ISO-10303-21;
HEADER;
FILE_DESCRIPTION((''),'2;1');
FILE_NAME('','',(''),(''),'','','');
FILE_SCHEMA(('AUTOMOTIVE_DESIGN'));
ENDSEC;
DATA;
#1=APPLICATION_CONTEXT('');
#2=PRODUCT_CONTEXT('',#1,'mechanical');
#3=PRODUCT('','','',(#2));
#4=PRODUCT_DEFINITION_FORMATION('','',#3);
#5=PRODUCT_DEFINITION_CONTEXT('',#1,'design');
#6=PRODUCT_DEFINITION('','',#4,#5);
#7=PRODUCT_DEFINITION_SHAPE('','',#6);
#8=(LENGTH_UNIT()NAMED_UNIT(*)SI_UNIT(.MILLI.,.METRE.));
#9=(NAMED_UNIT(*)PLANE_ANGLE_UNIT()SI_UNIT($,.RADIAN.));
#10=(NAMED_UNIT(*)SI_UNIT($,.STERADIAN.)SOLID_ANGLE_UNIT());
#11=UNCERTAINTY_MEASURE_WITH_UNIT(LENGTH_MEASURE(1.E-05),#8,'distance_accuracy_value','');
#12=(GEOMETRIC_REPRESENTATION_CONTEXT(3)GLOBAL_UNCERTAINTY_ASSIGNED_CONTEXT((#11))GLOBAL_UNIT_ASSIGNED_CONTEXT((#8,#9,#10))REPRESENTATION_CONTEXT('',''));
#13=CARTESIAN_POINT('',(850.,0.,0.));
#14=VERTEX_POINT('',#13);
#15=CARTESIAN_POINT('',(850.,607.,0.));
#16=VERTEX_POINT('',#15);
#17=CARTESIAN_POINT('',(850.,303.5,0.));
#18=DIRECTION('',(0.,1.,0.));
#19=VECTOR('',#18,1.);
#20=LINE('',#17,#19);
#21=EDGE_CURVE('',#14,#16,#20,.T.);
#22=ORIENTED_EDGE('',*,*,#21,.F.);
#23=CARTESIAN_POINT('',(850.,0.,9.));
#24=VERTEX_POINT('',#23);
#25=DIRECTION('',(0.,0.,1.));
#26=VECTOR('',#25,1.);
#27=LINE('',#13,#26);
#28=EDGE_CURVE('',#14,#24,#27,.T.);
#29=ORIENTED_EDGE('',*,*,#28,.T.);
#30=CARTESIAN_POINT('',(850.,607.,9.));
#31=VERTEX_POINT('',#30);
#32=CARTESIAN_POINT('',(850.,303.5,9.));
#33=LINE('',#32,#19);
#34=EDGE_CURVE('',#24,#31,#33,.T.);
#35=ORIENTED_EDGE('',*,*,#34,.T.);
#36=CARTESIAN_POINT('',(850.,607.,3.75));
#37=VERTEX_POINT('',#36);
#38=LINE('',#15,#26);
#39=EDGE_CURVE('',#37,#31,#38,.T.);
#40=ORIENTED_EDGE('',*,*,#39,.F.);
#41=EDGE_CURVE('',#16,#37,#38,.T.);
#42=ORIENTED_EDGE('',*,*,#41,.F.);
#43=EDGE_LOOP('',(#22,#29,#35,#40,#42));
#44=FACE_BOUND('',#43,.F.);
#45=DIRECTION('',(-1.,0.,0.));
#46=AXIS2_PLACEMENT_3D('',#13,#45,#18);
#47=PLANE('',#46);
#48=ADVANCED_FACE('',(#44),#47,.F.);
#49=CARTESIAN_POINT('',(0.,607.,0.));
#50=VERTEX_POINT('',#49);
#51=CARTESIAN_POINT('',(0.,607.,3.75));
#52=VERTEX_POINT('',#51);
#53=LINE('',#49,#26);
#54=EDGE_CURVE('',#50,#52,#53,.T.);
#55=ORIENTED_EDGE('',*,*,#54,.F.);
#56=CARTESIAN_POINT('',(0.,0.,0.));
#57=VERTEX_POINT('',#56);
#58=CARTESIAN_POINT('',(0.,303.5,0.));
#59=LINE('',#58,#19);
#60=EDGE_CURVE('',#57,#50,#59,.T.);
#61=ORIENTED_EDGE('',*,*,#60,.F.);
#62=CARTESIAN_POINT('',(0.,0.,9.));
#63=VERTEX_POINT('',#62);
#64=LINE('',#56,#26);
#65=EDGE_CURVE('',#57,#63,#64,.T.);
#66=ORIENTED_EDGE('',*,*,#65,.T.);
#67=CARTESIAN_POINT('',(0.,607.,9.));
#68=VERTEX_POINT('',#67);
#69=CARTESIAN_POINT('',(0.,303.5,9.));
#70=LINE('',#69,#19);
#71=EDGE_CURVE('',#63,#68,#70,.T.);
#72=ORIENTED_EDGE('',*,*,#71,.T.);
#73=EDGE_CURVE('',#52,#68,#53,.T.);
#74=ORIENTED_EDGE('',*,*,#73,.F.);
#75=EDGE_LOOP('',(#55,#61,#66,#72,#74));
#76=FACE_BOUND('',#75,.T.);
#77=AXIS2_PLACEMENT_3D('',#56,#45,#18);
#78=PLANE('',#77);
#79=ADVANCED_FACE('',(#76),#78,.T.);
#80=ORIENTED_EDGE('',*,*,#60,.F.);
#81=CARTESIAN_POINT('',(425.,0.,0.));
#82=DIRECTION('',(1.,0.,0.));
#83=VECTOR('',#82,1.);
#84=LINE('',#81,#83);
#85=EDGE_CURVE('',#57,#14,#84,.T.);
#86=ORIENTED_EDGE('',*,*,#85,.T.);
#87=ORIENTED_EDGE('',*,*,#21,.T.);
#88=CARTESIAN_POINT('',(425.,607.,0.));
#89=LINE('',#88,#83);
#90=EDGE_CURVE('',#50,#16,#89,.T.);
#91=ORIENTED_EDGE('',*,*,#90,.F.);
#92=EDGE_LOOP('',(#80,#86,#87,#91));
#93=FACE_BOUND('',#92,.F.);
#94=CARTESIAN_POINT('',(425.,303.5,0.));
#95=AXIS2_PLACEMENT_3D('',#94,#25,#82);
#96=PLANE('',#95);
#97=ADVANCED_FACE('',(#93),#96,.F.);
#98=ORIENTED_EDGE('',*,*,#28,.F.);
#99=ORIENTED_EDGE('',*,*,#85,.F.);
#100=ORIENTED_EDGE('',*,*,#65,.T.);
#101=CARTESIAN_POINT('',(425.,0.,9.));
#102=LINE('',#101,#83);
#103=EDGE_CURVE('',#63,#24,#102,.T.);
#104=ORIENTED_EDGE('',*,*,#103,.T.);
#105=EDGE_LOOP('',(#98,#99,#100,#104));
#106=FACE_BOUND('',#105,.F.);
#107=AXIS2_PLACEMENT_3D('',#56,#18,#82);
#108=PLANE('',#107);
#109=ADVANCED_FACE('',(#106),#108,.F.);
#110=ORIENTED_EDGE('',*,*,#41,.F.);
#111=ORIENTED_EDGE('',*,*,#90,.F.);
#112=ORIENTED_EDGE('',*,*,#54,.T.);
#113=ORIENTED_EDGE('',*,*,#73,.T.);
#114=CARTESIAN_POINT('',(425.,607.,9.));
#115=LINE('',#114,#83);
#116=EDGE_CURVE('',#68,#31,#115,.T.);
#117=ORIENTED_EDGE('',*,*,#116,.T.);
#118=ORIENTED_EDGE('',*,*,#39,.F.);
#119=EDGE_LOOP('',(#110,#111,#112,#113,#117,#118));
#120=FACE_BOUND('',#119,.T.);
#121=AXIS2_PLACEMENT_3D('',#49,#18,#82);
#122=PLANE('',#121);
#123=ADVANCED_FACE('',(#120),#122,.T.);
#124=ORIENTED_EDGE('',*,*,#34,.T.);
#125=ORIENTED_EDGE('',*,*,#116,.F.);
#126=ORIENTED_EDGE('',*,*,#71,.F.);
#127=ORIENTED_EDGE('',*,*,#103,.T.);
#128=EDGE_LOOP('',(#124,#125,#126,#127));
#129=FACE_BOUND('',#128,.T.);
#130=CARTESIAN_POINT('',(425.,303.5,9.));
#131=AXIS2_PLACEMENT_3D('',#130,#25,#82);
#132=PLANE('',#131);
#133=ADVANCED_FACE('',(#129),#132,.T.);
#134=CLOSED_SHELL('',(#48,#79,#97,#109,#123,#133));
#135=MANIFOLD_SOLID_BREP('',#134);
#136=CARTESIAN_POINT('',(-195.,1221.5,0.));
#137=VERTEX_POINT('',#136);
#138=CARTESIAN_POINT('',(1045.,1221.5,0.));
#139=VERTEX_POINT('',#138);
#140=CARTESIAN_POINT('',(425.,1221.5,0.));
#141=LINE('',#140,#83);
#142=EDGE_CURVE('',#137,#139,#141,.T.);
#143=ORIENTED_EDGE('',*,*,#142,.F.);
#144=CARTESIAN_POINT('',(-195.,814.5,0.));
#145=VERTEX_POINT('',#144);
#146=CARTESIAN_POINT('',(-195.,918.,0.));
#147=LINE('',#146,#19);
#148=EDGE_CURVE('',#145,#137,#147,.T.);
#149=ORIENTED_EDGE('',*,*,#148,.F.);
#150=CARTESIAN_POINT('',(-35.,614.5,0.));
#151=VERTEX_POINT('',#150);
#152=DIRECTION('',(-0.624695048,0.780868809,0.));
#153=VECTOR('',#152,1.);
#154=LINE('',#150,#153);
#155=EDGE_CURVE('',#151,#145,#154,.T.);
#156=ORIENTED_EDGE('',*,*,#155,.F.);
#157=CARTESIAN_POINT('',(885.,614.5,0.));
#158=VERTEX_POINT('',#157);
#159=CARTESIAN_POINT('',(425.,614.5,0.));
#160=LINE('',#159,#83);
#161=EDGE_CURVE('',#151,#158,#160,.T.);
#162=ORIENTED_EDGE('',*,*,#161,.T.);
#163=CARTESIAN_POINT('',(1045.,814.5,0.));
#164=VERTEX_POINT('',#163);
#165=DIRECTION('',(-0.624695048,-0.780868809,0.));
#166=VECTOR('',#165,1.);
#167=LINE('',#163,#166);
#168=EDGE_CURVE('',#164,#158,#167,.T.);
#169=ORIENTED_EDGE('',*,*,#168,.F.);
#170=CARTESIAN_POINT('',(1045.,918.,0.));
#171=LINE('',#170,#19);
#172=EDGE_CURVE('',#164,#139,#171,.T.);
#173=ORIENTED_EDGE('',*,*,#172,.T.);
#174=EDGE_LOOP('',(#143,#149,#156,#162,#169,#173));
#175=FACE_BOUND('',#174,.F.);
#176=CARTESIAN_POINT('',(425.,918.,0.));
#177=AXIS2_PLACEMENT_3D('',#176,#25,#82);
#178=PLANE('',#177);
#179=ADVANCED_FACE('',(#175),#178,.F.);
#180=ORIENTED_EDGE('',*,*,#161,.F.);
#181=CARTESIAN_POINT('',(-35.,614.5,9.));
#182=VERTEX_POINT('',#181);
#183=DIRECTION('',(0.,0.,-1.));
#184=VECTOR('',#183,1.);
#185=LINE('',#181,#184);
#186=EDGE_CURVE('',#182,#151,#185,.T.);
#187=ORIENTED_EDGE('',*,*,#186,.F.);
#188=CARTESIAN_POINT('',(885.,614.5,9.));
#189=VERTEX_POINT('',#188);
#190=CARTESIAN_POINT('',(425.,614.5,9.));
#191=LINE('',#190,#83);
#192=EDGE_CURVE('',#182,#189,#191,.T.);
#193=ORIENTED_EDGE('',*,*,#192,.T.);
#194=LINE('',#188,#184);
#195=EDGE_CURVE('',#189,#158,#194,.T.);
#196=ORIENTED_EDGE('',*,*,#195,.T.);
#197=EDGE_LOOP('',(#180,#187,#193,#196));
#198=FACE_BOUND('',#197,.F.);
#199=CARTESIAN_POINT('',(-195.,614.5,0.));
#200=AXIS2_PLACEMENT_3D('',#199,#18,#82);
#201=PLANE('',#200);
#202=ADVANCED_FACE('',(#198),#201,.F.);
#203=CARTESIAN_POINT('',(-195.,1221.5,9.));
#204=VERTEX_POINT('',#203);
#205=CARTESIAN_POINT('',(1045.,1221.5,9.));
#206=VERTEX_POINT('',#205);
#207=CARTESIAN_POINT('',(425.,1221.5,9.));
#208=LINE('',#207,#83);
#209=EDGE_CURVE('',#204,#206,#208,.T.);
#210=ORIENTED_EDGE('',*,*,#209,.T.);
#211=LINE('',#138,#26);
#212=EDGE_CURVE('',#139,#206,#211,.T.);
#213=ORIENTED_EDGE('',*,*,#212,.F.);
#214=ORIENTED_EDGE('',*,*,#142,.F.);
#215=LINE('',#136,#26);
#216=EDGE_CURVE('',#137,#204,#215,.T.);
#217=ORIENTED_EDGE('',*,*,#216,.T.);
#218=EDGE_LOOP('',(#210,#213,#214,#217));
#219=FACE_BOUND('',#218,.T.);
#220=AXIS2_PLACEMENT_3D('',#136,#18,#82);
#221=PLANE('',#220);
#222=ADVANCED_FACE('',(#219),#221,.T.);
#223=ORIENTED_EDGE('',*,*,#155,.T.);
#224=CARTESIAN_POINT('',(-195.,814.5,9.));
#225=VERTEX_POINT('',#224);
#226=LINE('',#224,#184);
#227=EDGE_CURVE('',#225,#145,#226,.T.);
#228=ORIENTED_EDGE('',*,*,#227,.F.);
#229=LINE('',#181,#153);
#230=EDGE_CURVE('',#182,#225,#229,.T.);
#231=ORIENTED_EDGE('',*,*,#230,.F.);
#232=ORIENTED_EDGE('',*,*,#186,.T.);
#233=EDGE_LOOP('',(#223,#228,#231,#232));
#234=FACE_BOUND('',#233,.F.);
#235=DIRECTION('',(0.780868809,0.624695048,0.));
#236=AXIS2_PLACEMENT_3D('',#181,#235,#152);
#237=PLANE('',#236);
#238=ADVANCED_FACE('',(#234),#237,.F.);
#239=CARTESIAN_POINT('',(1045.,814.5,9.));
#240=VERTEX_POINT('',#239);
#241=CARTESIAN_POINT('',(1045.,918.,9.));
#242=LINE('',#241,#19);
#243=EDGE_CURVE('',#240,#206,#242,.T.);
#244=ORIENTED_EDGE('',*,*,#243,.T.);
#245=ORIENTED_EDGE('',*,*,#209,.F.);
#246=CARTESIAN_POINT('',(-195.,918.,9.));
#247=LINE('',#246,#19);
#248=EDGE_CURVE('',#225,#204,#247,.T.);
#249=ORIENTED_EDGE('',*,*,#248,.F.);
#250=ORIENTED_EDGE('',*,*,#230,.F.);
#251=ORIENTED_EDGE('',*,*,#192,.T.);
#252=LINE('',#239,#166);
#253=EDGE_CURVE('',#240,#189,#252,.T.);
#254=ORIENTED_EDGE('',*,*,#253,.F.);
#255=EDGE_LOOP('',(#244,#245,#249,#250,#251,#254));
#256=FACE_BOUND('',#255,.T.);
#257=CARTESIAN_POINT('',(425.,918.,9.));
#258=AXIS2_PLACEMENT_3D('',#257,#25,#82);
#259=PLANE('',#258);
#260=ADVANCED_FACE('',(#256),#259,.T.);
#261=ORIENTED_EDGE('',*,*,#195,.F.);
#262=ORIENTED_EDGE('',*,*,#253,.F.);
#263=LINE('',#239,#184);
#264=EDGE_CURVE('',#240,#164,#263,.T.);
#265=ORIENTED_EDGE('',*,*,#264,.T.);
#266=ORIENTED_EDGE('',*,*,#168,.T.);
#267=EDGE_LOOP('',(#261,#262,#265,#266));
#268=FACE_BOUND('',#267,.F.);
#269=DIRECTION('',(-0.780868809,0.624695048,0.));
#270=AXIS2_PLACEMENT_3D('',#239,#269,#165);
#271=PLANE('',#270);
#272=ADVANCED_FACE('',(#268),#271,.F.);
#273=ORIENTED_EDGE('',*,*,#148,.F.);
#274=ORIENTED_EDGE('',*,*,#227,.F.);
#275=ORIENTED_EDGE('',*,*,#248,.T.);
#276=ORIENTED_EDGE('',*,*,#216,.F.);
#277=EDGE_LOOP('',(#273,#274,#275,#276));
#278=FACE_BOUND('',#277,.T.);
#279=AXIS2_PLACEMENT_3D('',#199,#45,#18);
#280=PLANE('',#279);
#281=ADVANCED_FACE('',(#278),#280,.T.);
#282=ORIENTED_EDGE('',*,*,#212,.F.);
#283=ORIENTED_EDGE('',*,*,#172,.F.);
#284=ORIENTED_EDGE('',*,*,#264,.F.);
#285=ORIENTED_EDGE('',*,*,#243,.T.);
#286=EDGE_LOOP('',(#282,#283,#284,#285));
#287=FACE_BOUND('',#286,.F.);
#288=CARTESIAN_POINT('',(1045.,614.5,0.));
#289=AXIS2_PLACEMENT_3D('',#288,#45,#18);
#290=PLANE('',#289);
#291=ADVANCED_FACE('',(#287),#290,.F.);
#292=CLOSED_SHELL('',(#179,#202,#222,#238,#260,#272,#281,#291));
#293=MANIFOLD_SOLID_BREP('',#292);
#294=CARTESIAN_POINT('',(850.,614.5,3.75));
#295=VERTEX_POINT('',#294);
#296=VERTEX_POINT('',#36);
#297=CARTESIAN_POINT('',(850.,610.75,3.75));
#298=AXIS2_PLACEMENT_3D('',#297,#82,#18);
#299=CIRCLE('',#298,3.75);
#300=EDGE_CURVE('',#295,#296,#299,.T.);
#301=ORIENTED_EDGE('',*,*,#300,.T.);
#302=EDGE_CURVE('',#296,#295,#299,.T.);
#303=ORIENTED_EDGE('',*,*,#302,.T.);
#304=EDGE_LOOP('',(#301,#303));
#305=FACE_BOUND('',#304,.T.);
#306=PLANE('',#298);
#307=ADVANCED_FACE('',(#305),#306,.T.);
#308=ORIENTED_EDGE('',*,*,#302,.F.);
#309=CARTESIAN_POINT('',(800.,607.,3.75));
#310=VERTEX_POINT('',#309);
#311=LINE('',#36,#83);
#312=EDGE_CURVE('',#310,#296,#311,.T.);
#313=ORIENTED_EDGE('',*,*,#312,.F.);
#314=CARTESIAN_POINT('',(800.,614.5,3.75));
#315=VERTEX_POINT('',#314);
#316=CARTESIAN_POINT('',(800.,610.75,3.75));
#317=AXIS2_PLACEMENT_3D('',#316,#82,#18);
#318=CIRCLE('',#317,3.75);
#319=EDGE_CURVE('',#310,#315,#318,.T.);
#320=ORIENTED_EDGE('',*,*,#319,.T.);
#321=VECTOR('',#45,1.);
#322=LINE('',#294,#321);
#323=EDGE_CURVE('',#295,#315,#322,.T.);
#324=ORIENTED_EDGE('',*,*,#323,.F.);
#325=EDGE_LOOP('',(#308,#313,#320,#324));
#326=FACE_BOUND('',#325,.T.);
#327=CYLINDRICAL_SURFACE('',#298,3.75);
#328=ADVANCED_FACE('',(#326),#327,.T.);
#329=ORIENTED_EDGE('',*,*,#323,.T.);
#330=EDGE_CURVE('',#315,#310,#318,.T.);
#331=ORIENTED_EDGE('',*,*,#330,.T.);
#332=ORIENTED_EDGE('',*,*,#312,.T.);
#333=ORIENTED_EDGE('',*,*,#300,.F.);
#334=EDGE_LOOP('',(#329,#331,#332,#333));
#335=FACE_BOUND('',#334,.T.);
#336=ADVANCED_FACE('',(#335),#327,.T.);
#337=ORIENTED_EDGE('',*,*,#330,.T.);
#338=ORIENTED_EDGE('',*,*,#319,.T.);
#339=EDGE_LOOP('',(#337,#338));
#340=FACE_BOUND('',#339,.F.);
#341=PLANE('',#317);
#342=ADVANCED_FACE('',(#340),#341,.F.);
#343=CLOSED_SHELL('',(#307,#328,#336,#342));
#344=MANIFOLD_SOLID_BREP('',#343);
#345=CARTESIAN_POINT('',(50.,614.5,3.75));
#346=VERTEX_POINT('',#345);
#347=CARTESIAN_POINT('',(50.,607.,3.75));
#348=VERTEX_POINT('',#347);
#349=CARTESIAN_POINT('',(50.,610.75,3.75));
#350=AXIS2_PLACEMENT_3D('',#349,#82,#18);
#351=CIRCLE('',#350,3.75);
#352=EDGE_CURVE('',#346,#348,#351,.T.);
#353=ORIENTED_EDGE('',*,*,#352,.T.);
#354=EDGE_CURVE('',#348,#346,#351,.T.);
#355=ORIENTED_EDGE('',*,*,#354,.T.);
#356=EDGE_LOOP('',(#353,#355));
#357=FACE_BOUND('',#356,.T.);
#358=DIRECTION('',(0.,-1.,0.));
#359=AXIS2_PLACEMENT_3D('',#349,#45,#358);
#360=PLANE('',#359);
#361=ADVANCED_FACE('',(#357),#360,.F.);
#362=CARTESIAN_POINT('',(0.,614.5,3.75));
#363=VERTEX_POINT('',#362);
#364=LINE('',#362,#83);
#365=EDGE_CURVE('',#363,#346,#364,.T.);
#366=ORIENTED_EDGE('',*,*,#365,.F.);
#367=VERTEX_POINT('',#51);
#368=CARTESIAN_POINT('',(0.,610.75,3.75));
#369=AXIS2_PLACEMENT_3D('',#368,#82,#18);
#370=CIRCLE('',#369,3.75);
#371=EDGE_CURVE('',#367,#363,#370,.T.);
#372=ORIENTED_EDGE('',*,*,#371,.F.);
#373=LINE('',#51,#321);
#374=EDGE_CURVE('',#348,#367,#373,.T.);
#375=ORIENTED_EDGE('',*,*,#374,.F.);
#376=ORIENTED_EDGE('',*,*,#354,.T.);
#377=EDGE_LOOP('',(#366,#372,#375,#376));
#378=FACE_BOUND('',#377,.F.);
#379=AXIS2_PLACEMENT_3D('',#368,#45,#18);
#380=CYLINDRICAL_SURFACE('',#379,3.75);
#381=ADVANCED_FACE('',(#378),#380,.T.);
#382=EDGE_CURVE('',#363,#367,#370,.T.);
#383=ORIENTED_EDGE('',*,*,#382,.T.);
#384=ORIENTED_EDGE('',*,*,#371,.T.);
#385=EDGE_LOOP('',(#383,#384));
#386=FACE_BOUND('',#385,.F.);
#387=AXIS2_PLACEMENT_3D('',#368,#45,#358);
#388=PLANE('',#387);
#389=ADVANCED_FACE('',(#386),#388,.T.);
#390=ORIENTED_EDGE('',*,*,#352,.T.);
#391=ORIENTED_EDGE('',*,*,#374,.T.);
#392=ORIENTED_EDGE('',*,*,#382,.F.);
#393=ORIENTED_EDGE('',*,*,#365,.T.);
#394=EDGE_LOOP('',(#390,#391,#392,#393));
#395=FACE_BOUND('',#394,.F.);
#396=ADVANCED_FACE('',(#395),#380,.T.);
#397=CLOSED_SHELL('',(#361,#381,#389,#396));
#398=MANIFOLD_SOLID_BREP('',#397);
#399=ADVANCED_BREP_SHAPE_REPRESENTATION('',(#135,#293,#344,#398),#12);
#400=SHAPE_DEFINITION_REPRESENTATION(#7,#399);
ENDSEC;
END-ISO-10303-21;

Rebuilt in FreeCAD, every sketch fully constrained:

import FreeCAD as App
import Part
import Sketcher
from FreeCAD import Vector
Q = App.Units.Quantity

doc = App.newDocument("Part")
body = doc.addObject("PartDesign::Body", "Body")

sketch1 = doc.addObject("Sketcher::SketchObject", "Sketch")
body.addObject(sketch1)
sketch1.AttachmentSupport = (doc.XY_Plane, [""])
sketch1.MapMode = "FlatFace"
sketch1.addGeometry([
    Part.LineSegment(Vector(0, 607, 0), Vector(0, 0, 0)),
    Part.LineSegment(Vector(0, 0, 0), Vector(850, 0, 0)),
    Part.LineSegment(Vector(850, 0, 0), Vector(850, 607, 0)),
    Part.LineSegment(Vector(850, 607, 0), Vector(0, 607, 0)),
], False)
sketch1.addConstraint([
    Sketcher.Constraint("Coincident", 0, 2, 1, 1),
    Sketcher.Constraint("Coincident", 1, 2, 2, 1),
    Sketcher.Constraint("Coincident", 2, 2, 3, 1),
    Sketcher.Constraint("Coincident", 3, 2, 0, 1),
    Sketcher.Constraint("Vertical", 0),
    Sketcher.Constraint("Horizontal", 1),
    Sketcher.Constraint("Vertical", 2),
    Sketcher.Constraint("Horizontal", 3),
    Sketcher.Constraint("Coincident", 0, 2, -1, 1),
    Sketcher.Constraint("DistanceX", 1, 1, 1, 2, Q("850 mm")),
    Sketcher.Constraint("DistanceY", 0, 2, 0, 1, Q("607 mm")),
])
pad1 = doc.addObject("PartDesign::Pad", "Pad")
body.addObject(pad1)
pad1.Profile = sketch1
pad1.Length = 9
body2 = doc.addObject("PartDesign::Body", "Body001")

sketch2 = doc.addObject("Sketcher::SketchObject", "Sketch001")
body2.addObject(sketch2)
sketch2.AttachmentSupport = (doc.getObject("XY_Plane001"), [""])
sketch2.MapMode = "FlatFace"
sketch2.addGeometry([
    Part.LineSegment(Vector(-195, 1222, 0), Vector(-195, 614, 0)),
    Part.LineSegment(Vector(-195, 614, 0), Vector(1045, 614, 0)),
    Part.LineSegment(Vector(1045, 614, 0), Vector(1045, 1222, 0)),
    Part.LineSegment(Vector(1045, 1222, 0), Vector(-195, 1222, 0)),
], False)
sketch2.addConstraint([
    Sketcher.Constraint("Coincident", 0, 2, 1, 1),
    Sketcher.Constraint("Coincident", 1, 2, 2, 1),
    Sketcher.Constraint("Coincident", 2, 2, 3, 1),
    Sketcher.Constraint("Coincident", 3, 2, 0, 1),
    Sketcher.Constraint("Vertical", 0),
    Sketcher.Constraint("Horizontal", 1),
    Sketcher.Constraint("Vertical", 2),
    Sketcher.Constraint("Horizontal", 3),
    Sketcher.Constraint("DistanceX", 1, 1, 1, 2, Q("1240 mm")),
    Sketcher.Constraint("DistanceY", 0, 2, 0, 1, Q("607 mm")),
    Sketcher.Constraint("DistanceX", 0, 2, -1, 1, Q("195 mm")),
    Sketcher.Constraint("DistanceY", -1, 1, 0, 2, Q("614.5 mm")),
])
pad2 = doc.addObject("PartDesign::Pad", "Pad001")
body2.addObject(pad2)
pad2.Profile = sketch2
pad2.Length = 9

sketch3 = doc.addObject("Sketcher::SketchObject", "Sketch002")
body2.addObject(sketch3)
sketch3.AttachmentSupport = (doc.getObject("XY_Plane001"), [""])
sketch3.MapMode = "FlatFace"
sketch3.AttachmentOffset = App.Placement(Vector(0, 0, 9), App.Rotation())
sketch3.addGeometry([
    Part.LineSegment(Vector(-195, 814, 0), Vector(-195, 614, 0)),
    Part.LineSegment(Vector(-195, 614, 0), Vector(-35, 614, 0)),
    Part.LineSegment(Vector(-35, 614, 0), Vector(-195, 814, 0)),
    Part.LineSegment(Vector(885, 614, 0), Vector(1045, 614, 0)),
    Part.LineSegment(Vector(1045, 614, 0), Vector(1045, 814, 0)),
    Part.LineSegment(Vector(1045, 814, 0), Vector(885, 614, 0)),
], False)
sketch3.addConstraint([
    Sketcher.Constraint("Coincident", 0, 2, 1, 1),
    Sketcher.Constraint("Coincident", 1, 2, 2, 1),
    Sketcher.Constraint("Coincident", 2, 2, 0, 1),
    Sketcher.Constraint("Coincident", 3, 2, 4, 1),
    Sketcher.Constraint("Coincident", 4, 2, 5, 1),
    Sketcher.Constraint("Coincident", 5, 2, 3, 1),
    Sketcher.Constraint("Vertical", 0),
    Sketcher.Constraint("Horizontal", 1),
    Sketcher.Constraint("Horizontal", 3),
    Sketcher.Constraint("Vertical", 4),
    Sketcher.Constraint("Horizontal", 1, 2, 3, 2),
    Sketcher.Constraint("Horizontal", 2, 2, 4, 2),
    Sketcher.Constraint("Equal", 1, 3),
    Sketcher.Constraint("DistanceX", 1, 1, 1, 2, Q("160 mm")),
    Sketcher.Constraint("DistanceY", 0, 2, 0, 1, Q("200 mm")),
    Sketcher.Constraint("DistanceX", 0, 2, -1, 1, Q("195 mm")),
    Sketcher.Constraint("DistanceX", -1, 1, 3, 2, Q("1045 mm")),
    Sketcher.Constraint("DistanceY", -1, 1, 0, 2, Q("614.5 mm")),
])
pocket1 = doc.addObject("PartDesign::Pocket", "Pocket")
body2.addObject(pocket1)
pocket1.Profile = sketch3
pocket1.Length = 9
body.AllowCompound = True
doc.recompute()

boolean = doc.addObject("PartDesign::Boolean", "Boolean")
body.addObject(boolean)
boolean.Type = "Fuse"
boolean.addObjects([body2])

sketch4 = doc.addObject("Sketcher::SketchObject", "Sketch003")
body.addObject(sketch4)
sketch4.AttachmentSupport = (doc.YZ_Plane, [""])
sketch4.MapMode = "FlatFace"
sketch4.AttachmentOffset = App.Placement(Vector(0, 0, 850), App.Rotation())
sketch4.addGeometry(Part.Circle(Vector(610.8, 3.8, 0), Vector(0, 0, 1), 3.8), False)
sketch4.addConstraint([
    Sketcher.Constraint("Diameter", 0, Q("7.5 mm")),
    Sketcher.Constraint("DistanceX", -1, 1, 0, 3, Q("610.75 mm")),
    Sketcher.Constraint("DistanceY", -1, 1, 0, 3, Q("3.75 mm")),
])
pad3 = doc.addObject("PartDesign::Pad", "Pad002")
body.addObject(pad3)
pad3.Profile = sketch4
pad3.Length = 50
pad3.Reversed = True
body3 = doc.addObject("PartDesign::Body", "Body002")
body3.AllowCompound = True
doc.recompute()

body3.BaseFeature = body
doc.recompute()

mirroring = doc.addObject("Part::Mirroring", "Mirroring")
mirroring.Source = body
mirroring.Base = Vector(425, 303.5, 4.5)
mirroring.Normal = Vector(1, 0, 0)
body4 = doc.addObject("PartDesign::Body", "Body003")
body4.BaseFeature = mirroring
boolean2 = doc.addObject("PartDesign::Boolean", "Boolean001")
body3.addObject(boolean2)
boolean2.Type = "Fuse"
boolean2.addObjects([body4])
doc.recompute()
mirroring.Visibility = False

doc.recompute()
